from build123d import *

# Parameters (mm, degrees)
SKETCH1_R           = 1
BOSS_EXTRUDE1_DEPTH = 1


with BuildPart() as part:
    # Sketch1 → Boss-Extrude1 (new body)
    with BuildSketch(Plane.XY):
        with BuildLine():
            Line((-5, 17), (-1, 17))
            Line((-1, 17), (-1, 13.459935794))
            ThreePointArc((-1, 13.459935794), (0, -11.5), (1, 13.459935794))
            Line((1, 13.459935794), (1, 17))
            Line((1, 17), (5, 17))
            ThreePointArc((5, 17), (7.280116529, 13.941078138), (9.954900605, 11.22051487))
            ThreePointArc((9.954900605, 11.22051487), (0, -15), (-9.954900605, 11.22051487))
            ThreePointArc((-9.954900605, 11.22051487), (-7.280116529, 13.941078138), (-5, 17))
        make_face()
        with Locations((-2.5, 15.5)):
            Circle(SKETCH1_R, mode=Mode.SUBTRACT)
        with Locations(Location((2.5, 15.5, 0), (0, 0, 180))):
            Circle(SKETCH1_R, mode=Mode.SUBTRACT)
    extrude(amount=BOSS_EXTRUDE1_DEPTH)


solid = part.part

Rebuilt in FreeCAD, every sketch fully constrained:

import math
import FreeCAD as App
import Part
import Sketcher

doc = App.newDocument("Part")
body = doc.addObject("PartDesign::Body", "Body")

sketch1 = body.newObject("Sketcher::SketchObject", "Sketch")
sketch1.AttachmentSupport = (doc.getObject("XY_Plane"), [""])
sketch1.MapMode = "FlatFace"
sketch1.addGeometry([
    Part.LineSegment(App.Vector(-1, 17, 0), App.Vector(-5, 17, 0)),
    Part.ArcOfCircle(Part.Circle(App.Vector(-28.537382, 32.165476, 0), App.Vector(0, 0, 1), 28), math.radians(-48.420391), math.radians(-32.79427)),
    Part.ArcOfCircle(Part.Circle(App.Vector(0, 0, 0), App.Vector(0, 0, 1), 15), math.radians(131.579609), math.radians(408.420391)),
    Part.ArcOfCircle(Part.Circle(App.Vector(28.537382, 32.165476, 0), App.Vector(0, 0, 1), 28), math.radians(-147.20573), math.radians(-131.579609)),
    Part.LineSegment(App.Vector(5, 17, 0), App.Vector(1, 17, 0)),
    Part.LineSegment(App.Vector(1, 17, 0), App.Vector(1, 13.459936, 0)),
    Part.ArcOfCircle(Part.Circle(App.Vector(0, 1, 0), App.Vector(0, 0, 1), 12.5), math.radians(94.588566), math.radians(445.411434)),
    Part.LineSegment(App.Vector(-1, 13.459936, 0), App.Vector(-1, 17, 0)),
    Part.Circle(App.Vector(2.5, 15.5, 0), App.Vector(0, 0, 1), 1),
    Part.Circle(App.Vector(-2.5, 15.5, 0), App.Vector(0, 0, 1), 1),
], False)
sketch1.addConstraint([
    Sketcher.Constraint("Coincident", 0, 2, 1, 2),
    Sketcher.Constraint("Tangent", 1, 1, 2, 1),
    Sketcher.Constraint("Tangent", 2, 2, 3, 2),
    Sketcher.Constraint("Coincident", 3, 1, 4, 1),
    Sketcher.Constraint("Coincident", 4, 2, 5, 1),
    Sketcher.Constraint("Coincident", 5, 2, 6, 2),
    Sketcher.Constraint("Coincident", 6, 1, 7, 1),
    Sketcher.Constraint("Coincident", 7, 2, 0, 1),
    Sketcher.Constraint("Horizontal", 0),
    Sketcher.Constraint("Horizontal", 4),
    Sketcher.Constraint("Vertical", 5),
    Sketcher.Constraint("Vertical", 7),
    Sketcher.Constraint("Coincident", 2, 3, -1, 1),
    Sketcher.Constraint("Equal", 1, 3),
    Sketcher.Constraint("Equal", 8, 9),
    Sketcher.Constraint("Symmetric", 8, 3, 9, 3, -2),
    Sketcher.Constraint("Symmetric", 0, 2, 3, 1, -2),
    Sketcher.Constraint("Symmetric", 5, 2, 6, 1, -2),
    Sketcher.Constraint("Diameter", 8, 2.0),
    Sketcher.Constraint("Radius", 1, 28.0),
    Sketcher.Constraint("Radius", 2, 15.0),
    Sketcher.Constraint("Radius", 6, 12.5),
    Sketcher.Constraint("DistanceX", 0, 2, 0, 1, 4.0),
    Sketcher.Constraint("DistanceY", -1, 1, 6, 3, 1.0),
    Sketcher.Constraint("DistanceX", 0, 2, -1, 1, 5.0),
    Sketcher.Constraint("DistanceY", -1, 1, 0, 2, 17.0),
    Sketcher.Constraint("DistanceX", 9, 3, 8, 3, 5.0),
    Sketcher.Constraint("DistanceY", -1, 1, 8, 3, 15.5),
])
pad1 = body.newObject("PartDesign::Pad", "Pad")
pad1.Profile = sketch1
pad1.Length = 1

doc.recompute()
